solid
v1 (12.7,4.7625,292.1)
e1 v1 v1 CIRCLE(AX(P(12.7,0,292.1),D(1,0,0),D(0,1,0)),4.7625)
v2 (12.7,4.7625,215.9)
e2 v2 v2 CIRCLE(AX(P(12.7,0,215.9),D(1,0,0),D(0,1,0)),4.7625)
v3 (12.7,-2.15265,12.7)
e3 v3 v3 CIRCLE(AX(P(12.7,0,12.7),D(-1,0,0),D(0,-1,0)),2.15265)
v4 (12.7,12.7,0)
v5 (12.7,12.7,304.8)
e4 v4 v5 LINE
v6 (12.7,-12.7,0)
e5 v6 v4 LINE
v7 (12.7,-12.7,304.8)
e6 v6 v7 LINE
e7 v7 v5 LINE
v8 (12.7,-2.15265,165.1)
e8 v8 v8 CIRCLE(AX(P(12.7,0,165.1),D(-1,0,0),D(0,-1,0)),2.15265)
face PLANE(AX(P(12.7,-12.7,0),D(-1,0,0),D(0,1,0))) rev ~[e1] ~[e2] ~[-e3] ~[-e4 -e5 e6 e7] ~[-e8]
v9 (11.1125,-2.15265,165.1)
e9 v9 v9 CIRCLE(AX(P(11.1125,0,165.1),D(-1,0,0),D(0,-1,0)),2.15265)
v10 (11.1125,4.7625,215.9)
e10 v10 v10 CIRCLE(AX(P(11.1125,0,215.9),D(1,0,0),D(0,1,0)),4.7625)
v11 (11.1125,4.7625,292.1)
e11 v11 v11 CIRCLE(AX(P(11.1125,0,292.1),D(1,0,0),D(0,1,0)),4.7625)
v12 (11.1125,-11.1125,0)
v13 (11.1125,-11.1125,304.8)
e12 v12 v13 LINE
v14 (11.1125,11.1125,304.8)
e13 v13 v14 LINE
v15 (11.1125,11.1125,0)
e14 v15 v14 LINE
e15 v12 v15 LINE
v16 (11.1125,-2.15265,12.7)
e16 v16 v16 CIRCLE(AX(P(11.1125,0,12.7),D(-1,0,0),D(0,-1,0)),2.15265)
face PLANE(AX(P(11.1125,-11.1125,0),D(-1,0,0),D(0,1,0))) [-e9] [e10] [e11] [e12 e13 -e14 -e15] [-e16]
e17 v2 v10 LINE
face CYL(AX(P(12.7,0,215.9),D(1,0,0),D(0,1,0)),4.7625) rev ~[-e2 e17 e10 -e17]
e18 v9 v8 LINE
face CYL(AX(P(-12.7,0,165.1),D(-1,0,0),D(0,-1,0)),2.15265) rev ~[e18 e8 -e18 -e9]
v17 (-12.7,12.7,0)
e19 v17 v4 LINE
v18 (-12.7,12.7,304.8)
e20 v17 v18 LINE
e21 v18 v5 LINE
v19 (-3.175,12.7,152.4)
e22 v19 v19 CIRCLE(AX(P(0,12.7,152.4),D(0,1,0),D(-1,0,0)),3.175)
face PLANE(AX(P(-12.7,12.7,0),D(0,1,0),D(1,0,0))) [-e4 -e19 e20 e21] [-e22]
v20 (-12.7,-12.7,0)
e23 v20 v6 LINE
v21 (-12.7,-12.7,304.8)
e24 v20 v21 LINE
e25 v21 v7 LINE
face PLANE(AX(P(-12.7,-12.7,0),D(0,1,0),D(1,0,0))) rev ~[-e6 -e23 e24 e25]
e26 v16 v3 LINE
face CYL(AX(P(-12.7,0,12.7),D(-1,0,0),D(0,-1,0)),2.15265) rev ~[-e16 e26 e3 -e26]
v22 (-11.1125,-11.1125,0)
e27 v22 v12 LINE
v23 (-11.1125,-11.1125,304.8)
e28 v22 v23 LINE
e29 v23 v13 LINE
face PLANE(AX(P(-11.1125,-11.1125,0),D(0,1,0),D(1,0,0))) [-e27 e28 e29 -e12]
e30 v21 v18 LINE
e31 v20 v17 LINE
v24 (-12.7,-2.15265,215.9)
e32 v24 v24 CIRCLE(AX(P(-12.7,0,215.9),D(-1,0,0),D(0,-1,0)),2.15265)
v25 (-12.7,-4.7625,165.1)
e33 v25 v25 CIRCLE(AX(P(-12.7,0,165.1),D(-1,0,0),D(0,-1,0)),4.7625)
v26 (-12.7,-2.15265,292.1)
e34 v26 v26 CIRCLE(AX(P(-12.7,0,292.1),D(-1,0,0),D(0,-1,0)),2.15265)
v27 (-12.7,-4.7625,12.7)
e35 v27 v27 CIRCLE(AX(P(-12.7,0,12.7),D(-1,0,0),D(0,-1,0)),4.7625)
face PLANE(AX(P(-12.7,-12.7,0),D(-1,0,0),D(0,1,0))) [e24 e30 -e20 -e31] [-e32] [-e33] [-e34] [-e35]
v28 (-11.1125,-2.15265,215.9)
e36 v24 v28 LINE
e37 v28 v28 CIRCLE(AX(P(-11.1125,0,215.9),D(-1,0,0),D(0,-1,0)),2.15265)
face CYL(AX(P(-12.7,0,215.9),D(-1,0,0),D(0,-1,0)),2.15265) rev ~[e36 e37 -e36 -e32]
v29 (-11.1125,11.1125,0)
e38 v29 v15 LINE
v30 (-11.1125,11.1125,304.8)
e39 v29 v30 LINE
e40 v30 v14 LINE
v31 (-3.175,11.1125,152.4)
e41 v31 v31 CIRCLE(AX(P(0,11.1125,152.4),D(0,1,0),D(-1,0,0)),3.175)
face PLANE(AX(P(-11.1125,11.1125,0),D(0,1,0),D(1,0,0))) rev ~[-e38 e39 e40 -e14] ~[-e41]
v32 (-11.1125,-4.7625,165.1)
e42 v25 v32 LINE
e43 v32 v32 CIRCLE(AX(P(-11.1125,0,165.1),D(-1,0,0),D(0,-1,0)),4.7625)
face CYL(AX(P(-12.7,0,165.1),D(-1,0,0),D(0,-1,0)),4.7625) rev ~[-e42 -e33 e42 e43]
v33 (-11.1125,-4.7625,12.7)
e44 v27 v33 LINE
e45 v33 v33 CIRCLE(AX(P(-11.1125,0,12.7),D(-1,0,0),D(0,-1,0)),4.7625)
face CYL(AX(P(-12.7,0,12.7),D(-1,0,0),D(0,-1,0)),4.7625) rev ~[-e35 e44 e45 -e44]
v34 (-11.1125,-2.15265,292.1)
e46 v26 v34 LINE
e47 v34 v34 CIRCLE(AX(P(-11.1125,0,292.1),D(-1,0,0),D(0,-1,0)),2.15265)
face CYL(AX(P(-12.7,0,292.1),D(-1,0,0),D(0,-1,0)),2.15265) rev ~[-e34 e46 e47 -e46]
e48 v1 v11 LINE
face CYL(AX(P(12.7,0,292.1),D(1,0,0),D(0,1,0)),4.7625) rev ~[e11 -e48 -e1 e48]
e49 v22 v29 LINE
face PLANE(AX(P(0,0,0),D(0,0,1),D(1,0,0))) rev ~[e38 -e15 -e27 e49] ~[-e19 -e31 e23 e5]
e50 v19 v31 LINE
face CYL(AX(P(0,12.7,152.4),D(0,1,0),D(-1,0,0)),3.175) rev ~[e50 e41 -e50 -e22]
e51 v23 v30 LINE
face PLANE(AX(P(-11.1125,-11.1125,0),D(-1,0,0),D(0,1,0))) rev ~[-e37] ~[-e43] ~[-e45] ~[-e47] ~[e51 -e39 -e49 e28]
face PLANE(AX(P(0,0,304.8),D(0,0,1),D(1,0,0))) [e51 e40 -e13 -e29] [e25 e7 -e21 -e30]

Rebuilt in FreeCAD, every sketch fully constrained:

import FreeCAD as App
import Part
import Sketcher

V = App.Vector
Q = App.Units.Quantity


def add_polygon(sketch, points):
    """Adds a closed chain of lines whose ends are joined by coincident constraints."""
    first, n = sketch.GeometryCount, len(points)
    for a, b in zip(points, points[1:] + points[:1]):
        sketch.addGeometry(Part.LineSegment(App.Vector(*a, 0), App.Vector(*b, 0)), False)
    for i in range(n):
        sketch.addConstraint(Sketcher.Constraint("Coincident", first + i, 2, first + (i + 1) % n, 1))

doc = App.newDocument("Part")
params = doc.addObject("Spreadsheet::Sheet", "Params")
for row, (alias, value) in enumerate([
    ("sketch1_width", "1 in"),
    ("sketch1_width2", "0.875 in"),
    ("pad1_length", "12 in"),
    ("sketch2_diameter", "0.25 in"),
    ("pocket1_length", "0.0625 in"),
    ("sketch4_diameter", "0.375 in"),
    ("pocket3_length", "0.0625 in"),
    ("sketch5_diameter", "0.375 in"),
    ("pocket4_length", "0.0625 in"),
], start=1):
    params.set(f"A{row}", alias)
    params.set(f"B{row}", "=" + value)
    params.setAlias(f"B{row}", alias)

body = doc.addObject("PartDesign::Body", "Body")

# Sketch on XY plane
sketch1 = doc.addObject("Sketcher::SketchObject", "Sketch")
body.addObject(sketch1)
sketch1.AttachmentSupport = (doc.XY_Plane, [""])
sketch1.MapMode = "FlatFace"
add_polygon(sketch1, [(-12.7, 12.7), (-12.7, -12.7), (12.7, -12.7), (12.7, 12.7)])  # lines 0-3
add_polygon(sketch1, [(11.1125, -11.1125), (-11.1125, -11.1125), (-11.1125, 11.1125), (11.1125, 11.1125)])  # lines 4-7
sketch1.addConstraint([
    Sketcher.Constraint("Vertical", 0),
    Sketcher.Constraint("Horizontal", 1),
    Sketcher.Constraint("Vertical", 2),
    Sketcher.Constraint("Horizontal", 3),
    Sketcher.Constraint("Horizontal", 4),
    Sketcher.Constraint("Vertical", 5),
    Sketcher.Constraint("Horizontal", 6),
    Sketcher.Constraint("Vertical", 7),
    Sketcher.Constraint("Symmetric", 0, 2, 2, 2, -1, 1),
    Sketcher.Constraint("Symmetric", 4, 2, 6, 2, -1, 1),
    Sketcher.Constraint("Equal", 3, 0),
    Sketcher.Constraint("Equal", 6, 5),
    Sketcher.Constraint("DistanceX", 1, 1, 1, 2, Q("1 in")),
    Sketcher.Constraint("DistanceX", 4, 2, 4, 1, Q("0.875 in")),
])
sketch1.setExpression("Constraints[20]", "Params.sketch1_width")
sketch1.setExpression("Constraints[21]", "Params.sketch1_width2")
pad1 = doc.addObject("PartDesign::Pad", "Pad")
body.addObject(pad1)
pad1.Profile = sketch1
pad1.setExpression("Length", "Params.pad1_length")

# Sketch on XZ plane
sketch2 = doc.addObject("Sketcher::SketchObject", "Sketch001")
body.addObject(sketch2)
sketch2.AttachmentSupport = (doc.XZ_Plane, [""])
sketch2.MapMode = "FlatFace"
sketch2.AttachmentOffset = App.Placement(V(0, 0, -0.5 * 25.4), App.Rotation())
sketch2.addGeometry(Part.Circle(V(0, 152.4, 0), V(0, 0, 1), 3.175), False)
sketch2.addConstraint([
    Sketcher.Constraint("PointOnObject", 0, 3, -2),
    Sketcher.Constraint("Diameter", 0, Q("0.25 in")),
    Sketcher.Constraint("DistanceY", -1, 1, 0, 3, Q("6 in")),
])
sketch2.setExpression("Constraints[1]", "Params.sketch2_diameter")
pocket1 = doc.addObject("PartDesign::Pocket", "Pocket")
body.addObject(pocket1)
pocket1.Profile = sketch2
pocket1.setExpression("Length", "Params.pocket1_length")
pocket1.Reversed = True

# Sketch on YZ plane
sketch3 = doc.addObject("Sketcher::SketchObject", "Sketch002")
body.addObject(sketch3)
sketch3.AttachmentSupport = (doc.YZ_Plane, [""])
sketch3.MapMode = "FlatFace"
sketch3.AttachmentOffset = App.Placement(V(0, 0, -0.5 * 25.4), App.Rotation())
sketch3.addGeometry([
    Part.Circle(V(0, 12.7, 0), V(0, 0, 1), 2.15265),
    Part.Circle(V(0, 165.1, 0), V(0, 0, 1), 2.15265),
    Part.Circle(V(0, 292.1, 0), V(0, 0, 1), 2.15265),
    Part.Circle(V(0, 215.9, 0), V(0, 0, 1), 2.15265),
], False)
sketch3.addConstraint([
    Sketcher.Constraint("Equal", 0, 1),
    Sketcher.Constraint("Equal", 1, 2),
    Sketcher.Constraint("Equal", 2, 3),
    Sketcher.Constraint("PointOnObject", 0, 3, -2),
    Sketcher.Constraint("PointOnObject", 1, 3, -2),
    Sketcher.Constraint("PointOnObject", 2, 3, -2),
    Sketcher.Constraint("PointOnObject", 3, 3, -2),
    Sketcher.Constraint("DistanceY", 0, 3, 1, 3, Q("6 in")),
    Sketcher.Constraint("DistanceY", 1, 3, 2, 3, Q("5 in")),
    Sketcher.Constraint("DistanceY", 1, 3, 3, 3, Q("2 in")),
    Sketcher.Constraint("Diameter", 0, Q("0.1695 in")),
    Sketcher.Constraint("DistanceY", -1, 1, 0, 3, Q("0.5 in")),
])
pocket2 = doc.addObject("PartDesign::Pocket", "Pocket001")
body.addObject(pocket2)
pocket2.Profile = sketch3
pocket2.Type = "ThroughAll"
pocket2.Reversed = True

# Sketch on YZ plane
sketch4 = doc.addObject("Sketcher::SketchObject", "Sketch003")
body.addObject(sketch4)
sketch4.AttachmentSupport = (doc.YZ_Plane, [""])
sketch4.MapMode = "FlatFace"
sketch4.AttachmentOffset = App.Placement(V(0, 0, 0.5 * 25.4), App.Rotation())
sketch4.addGeometry([
    Part.Circle(V(0, 292.1, 0), V(0, 0, 1), 4.7625),
    Part.Circle(V(0, 215.9, 0), V(0, 0, 1), 4.7625),
], False)
sketch4.addConstraint([
    Sketcher.Constraint("Equal", 0, 1),
    Sketcher.Constraint("PointOnObject", 0, 3, -2),
    Sketcher.Constraint("PointOnObject", 1, 3, -2),
    Sketcher.Constraint("Diameter", 0, Q("0.375 in")),
    Sketcher.Constraint("DistanceY", 1, 3, 0, 3, Q("3 in")),
    Sketcher.Constraint("DistanceY", -1, 1, 0, 3, Q("11.5 in")),
])
sketch4.setExpression("Constraints[3]", "Params.sketch4_diameter")
pocket3 = doc.addObject("PartDesign::Pocket", "Pocket002")
body.addObject(pocket3)
pocket3.Profile = sketch4
pocket3.setExpression("Length", "Params.pocket3_length")

# Sketch on YZ plane
sketch5 = doc.addObject("Sketcher::SketchObject", "Sketch004")
body.addObject(sketch5)
sketch5.AttachmentSupport = (doc.YZ_Plane, [""])
sketch5.MapMode = "FlatFace"
sketch5.AttachmentOffset = App.Placement(V(0, 0, -0.5 * 25.4), App.Rotation())
sketch5.addGeometry([
    Part.Circle(V(0, 165.1, 0), V(0, 0, 1), 4.7625),
    Part.Circle(V(0, 12.7, 0), V(0, 0, 1), 4.7625),
], False)
sketch5.addConstraint([
    Sketcher.Constraint("Equal", 0, 1),
    Sketcher.Constraint("PointOnObject", 0, 3, -2),
    Sketcher.Constraint("PointOnObject", 1, 3, -2),
    Sketcher.Constraint("Diameter", 0, Q("0.375 in")),
    Sketcher.Constraint("DistanceY", 1, 3, 0, 3, Q("6 in")),
    Sketcher.Constraint("DistanceY", -1, 1, 0, 3, Q("6.5 in")),
])
sketch5.setExpression("Constraints[3]", "Params.sketch5_diameter")
pocket4 = doc.addObject("PartDesign::Pocket", "Pocket003")
body.addObject(pocket4)
pocket4.Profile = sketch5
pocket4.setExpression("Length", "Params.pocket4_length")
pocket4.Reversed = True

doc.recompute()
